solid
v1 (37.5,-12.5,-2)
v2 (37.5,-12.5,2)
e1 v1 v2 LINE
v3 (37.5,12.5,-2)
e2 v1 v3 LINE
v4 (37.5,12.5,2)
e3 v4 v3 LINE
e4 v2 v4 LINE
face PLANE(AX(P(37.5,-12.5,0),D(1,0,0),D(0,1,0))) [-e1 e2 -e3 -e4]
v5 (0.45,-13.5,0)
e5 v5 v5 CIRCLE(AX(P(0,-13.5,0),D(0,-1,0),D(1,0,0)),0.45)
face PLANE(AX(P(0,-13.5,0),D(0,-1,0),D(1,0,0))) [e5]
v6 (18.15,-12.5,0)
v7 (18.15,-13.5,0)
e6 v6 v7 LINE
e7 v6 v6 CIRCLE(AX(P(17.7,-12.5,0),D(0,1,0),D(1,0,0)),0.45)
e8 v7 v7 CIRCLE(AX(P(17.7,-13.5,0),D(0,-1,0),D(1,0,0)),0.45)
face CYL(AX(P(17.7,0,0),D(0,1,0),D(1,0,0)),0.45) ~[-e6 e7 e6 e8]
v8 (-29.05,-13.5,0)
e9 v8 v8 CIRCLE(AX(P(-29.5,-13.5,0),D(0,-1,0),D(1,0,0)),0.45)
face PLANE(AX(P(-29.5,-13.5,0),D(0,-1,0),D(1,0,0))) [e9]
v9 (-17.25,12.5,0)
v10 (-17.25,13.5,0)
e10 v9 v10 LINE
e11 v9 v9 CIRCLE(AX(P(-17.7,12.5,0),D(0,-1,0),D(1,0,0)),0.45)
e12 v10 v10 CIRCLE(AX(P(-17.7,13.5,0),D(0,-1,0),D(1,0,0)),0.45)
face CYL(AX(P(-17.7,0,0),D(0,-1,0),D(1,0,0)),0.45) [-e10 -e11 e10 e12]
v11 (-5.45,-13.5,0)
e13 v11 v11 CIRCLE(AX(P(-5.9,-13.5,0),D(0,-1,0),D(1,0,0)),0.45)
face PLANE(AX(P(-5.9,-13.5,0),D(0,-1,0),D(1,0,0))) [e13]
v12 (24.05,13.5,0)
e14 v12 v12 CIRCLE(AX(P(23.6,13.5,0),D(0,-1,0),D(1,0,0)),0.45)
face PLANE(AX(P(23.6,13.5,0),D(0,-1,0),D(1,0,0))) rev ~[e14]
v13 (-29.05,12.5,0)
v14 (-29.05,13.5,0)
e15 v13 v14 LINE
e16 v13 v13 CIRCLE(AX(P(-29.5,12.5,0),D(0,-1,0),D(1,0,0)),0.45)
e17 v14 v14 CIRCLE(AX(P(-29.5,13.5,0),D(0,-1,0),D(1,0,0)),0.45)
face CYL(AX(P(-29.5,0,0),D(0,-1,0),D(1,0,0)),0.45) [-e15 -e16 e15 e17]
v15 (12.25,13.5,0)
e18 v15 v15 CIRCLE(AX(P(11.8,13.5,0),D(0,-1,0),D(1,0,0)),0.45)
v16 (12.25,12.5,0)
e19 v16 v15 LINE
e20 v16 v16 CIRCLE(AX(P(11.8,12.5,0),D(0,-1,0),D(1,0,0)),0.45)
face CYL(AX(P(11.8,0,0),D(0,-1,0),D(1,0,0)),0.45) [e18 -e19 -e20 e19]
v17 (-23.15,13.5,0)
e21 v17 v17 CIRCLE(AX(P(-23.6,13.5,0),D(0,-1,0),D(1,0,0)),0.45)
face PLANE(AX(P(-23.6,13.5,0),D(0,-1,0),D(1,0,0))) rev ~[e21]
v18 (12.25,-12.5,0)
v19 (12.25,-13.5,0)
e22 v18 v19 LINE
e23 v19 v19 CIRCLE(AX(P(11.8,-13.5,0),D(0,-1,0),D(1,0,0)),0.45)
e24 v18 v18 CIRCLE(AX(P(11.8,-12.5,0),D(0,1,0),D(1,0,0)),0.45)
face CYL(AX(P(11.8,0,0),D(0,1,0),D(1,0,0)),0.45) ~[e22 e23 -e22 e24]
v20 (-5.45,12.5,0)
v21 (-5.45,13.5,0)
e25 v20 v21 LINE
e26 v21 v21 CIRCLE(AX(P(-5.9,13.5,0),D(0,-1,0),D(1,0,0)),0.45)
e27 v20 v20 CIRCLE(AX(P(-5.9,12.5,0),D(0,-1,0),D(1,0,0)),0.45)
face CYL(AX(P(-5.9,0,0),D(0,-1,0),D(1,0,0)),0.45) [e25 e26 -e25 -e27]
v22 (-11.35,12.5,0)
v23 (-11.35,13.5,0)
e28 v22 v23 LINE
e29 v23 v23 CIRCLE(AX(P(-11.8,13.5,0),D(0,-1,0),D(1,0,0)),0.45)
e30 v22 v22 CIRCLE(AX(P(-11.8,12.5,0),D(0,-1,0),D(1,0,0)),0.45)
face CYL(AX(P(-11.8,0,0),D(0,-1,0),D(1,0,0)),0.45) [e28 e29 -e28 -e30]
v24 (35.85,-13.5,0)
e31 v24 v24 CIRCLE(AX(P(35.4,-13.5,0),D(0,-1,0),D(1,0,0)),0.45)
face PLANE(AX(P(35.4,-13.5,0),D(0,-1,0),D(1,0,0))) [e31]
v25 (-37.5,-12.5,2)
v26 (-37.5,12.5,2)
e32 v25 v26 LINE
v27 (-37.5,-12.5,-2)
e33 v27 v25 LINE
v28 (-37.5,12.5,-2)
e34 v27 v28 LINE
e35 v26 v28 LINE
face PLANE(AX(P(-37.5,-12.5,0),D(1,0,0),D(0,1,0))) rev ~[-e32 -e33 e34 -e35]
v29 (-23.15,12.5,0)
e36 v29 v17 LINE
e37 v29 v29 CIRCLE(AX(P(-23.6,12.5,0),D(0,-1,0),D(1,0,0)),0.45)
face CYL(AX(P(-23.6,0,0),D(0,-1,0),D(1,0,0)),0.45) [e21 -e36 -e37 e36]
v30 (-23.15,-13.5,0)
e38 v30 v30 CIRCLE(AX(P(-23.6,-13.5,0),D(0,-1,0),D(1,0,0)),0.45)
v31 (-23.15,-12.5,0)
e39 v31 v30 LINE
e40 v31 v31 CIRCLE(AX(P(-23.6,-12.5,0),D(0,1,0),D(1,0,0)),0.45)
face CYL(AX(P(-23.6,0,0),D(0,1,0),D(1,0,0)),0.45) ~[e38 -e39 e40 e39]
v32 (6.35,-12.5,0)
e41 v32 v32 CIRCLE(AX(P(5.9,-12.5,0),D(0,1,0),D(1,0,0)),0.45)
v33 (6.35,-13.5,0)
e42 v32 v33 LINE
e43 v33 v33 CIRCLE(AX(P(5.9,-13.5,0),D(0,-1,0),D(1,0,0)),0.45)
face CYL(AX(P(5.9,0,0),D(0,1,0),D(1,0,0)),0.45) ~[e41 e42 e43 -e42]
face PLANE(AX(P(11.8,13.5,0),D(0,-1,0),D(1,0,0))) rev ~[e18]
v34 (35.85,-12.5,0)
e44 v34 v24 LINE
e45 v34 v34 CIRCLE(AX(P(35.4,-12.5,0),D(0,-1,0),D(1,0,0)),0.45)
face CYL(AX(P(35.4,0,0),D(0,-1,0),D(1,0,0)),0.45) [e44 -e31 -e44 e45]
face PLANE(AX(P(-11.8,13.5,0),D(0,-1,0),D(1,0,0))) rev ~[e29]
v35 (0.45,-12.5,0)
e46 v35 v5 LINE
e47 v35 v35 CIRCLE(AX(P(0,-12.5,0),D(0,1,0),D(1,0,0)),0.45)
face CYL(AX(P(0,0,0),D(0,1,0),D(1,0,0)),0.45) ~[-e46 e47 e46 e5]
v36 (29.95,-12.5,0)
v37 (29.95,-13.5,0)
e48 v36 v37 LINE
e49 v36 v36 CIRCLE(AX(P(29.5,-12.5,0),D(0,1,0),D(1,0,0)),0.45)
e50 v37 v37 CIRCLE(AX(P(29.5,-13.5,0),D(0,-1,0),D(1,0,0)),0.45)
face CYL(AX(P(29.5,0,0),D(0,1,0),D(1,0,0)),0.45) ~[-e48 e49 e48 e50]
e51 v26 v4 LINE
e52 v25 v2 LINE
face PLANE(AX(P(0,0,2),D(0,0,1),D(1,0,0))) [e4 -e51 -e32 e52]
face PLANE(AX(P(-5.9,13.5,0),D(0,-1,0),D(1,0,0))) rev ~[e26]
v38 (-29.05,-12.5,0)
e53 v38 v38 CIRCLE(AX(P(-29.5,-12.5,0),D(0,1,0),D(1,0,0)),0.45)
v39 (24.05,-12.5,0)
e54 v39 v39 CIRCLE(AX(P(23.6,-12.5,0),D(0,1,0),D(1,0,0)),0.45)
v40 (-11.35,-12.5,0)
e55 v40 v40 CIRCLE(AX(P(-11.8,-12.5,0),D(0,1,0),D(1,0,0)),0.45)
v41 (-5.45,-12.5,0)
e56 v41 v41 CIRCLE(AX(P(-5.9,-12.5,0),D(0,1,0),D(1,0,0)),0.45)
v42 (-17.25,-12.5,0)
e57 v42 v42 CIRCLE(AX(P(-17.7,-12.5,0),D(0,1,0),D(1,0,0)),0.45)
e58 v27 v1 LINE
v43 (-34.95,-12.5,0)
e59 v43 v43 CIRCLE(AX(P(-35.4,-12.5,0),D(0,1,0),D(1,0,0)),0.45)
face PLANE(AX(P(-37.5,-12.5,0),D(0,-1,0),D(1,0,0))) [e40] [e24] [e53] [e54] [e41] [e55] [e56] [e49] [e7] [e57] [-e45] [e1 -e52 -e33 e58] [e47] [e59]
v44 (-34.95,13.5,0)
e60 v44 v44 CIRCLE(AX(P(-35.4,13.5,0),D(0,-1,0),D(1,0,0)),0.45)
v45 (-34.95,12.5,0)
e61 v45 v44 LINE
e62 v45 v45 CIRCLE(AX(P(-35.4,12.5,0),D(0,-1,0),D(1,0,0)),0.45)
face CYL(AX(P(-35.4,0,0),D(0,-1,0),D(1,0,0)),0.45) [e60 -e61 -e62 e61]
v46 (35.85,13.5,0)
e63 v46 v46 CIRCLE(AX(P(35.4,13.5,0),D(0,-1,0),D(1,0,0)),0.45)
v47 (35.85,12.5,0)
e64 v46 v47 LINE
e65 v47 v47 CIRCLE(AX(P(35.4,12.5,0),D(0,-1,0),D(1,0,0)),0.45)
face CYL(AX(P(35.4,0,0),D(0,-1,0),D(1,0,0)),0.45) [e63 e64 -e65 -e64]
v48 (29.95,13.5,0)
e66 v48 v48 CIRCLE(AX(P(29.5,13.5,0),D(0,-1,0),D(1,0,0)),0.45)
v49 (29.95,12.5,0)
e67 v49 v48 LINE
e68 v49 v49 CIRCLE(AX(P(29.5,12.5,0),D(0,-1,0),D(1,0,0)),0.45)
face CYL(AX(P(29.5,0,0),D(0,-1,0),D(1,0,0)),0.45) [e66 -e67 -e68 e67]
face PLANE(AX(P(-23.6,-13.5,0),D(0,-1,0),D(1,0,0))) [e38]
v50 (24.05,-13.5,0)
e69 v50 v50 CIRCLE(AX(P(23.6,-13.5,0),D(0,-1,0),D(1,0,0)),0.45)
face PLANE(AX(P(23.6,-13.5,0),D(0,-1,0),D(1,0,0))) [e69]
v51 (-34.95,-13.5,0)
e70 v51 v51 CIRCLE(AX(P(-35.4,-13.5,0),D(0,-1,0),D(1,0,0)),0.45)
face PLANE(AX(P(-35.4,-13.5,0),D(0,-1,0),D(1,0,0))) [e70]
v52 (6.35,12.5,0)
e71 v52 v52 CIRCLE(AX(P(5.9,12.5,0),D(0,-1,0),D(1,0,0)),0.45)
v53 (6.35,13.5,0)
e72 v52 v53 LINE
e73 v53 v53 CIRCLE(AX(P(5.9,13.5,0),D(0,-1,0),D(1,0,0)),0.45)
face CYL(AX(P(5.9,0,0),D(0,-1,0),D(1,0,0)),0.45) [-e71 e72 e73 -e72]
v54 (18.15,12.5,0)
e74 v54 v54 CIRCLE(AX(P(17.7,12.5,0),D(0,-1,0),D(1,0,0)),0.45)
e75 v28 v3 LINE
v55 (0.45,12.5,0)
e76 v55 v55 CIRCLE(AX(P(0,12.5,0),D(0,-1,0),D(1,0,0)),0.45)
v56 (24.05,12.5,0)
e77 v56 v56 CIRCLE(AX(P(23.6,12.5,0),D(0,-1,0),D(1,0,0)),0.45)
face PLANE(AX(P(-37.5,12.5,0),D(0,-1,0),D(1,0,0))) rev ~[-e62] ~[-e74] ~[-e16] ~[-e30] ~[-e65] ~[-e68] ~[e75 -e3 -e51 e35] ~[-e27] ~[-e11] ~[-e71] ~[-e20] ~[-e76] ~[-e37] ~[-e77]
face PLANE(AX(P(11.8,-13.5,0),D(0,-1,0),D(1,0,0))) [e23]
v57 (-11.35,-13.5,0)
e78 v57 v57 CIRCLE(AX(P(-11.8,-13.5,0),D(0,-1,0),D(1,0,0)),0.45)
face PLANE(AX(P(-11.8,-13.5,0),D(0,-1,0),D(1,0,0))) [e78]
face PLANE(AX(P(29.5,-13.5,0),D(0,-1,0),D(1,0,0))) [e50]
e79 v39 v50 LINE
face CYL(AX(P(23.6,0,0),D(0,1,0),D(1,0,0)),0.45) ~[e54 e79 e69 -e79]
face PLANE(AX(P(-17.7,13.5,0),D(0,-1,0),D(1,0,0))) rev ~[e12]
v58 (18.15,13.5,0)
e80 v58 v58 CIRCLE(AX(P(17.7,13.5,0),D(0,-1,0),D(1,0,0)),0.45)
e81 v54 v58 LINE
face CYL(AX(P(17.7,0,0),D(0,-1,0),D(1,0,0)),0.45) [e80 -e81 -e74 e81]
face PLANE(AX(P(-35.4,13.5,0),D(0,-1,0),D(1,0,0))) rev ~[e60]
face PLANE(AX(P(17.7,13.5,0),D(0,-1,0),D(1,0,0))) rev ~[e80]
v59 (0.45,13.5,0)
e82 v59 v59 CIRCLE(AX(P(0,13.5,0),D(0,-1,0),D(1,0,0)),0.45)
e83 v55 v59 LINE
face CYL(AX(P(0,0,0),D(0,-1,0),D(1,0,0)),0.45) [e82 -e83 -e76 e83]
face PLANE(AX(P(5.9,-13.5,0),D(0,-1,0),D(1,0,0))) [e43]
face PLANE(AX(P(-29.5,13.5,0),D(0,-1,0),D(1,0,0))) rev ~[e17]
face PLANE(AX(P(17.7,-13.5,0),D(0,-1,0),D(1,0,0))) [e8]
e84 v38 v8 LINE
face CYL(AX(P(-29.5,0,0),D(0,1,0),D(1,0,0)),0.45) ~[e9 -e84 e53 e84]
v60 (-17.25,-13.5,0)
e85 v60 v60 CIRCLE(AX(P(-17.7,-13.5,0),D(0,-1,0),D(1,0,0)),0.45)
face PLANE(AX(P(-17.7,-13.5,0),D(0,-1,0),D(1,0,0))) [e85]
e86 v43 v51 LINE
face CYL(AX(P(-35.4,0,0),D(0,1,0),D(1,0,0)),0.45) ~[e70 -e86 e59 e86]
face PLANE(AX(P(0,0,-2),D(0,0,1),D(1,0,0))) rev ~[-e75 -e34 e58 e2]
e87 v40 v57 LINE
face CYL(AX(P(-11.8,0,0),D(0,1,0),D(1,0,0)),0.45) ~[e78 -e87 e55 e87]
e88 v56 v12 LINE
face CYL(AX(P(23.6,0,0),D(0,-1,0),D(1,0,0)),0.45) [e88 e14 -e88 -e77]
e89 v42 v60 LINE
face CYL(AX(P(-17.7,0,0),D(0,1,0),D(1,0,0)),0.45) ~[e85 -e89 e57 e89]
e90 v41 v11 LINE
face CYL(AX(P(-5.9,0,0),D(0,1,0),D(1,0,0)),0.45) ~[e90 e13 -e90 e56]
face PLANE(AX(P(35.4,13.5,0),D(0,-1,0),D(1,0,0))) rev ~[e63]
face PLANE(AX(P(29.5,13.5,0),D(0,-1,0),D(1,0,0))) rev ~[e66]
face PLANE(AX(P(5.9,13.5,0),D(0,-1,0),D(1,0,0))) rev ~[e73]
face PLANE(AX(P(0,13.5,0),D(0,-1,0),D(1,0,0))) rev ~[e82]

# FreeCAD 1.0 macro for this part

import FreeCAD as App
import Part
import Sketcher
Q = App.Units.Quantity


def add_polygon(sketch, points):
    """Adds a closed chain of lines whose ends are joined by coincident constraints."""
    first, n = sketch.GeometryCount, len(points)
    for a, b in zip(points, points[1:] + points[:1]):
        sketch.addGeometry(Part.LineSegment(App.Vector(*a, 0), App.Vector(*b, 0)), False)
    for i in range(n):
        sketch.addConstraint(Sketcher.Constraint("Coincident", first + i, 2, first + (i + 1) % n, 1))

doc = App.newDocument("Part")
body = doc.addObject("PartDesign::Body", "Body")

# Sketch on XY plane
sketch1 = body.newObject("Sketcher::SketchObject", "Sketch")
sketch1.AttachmentSupport = (doc.getObject("XY_Plane"), [""])
sketch1.MapMode = "FlatFace"
add_polygon(sketch1, [(-37.5, 12.5), (-37.5, -12.5), (37.5, -12.5), (37.5, 12.5)])  # lines 0-3
sketch1.addConstraint([
    Sketcher.Constraint("Vertical", 0),
    Sketcher.Constraint("Horizontal", 1),
    Sketcher.Constraint("Vertical", 2),
    Sketcher.Constraint("Horizontal", 3),
    Sketcher.Constraint("Symmetric", 0, 2, 2, 2, -1, 1),
    Sketcher.Constraint("DistanceX", 1, 1, 1, 2, Q("75 mm")),
    Sketcher.Constraint("DistanceY", 0, 2, 0, 1, Q("25 mm")),
])
pad1 = body.newObject("PartDesign::Pad", "Pad")
pad1.Profile = sketch1
pad1.Length = 4
pad1.Midplane = True

# Sketch on XZ plane
sketch2 = body.newObject("Sketcher::SketchObject", "Sketch001")
sketch2.AttachmentSupport = (doc.getObject("XZ_Plane"), [""])
sketch2.MapMode = "FlatFace"
sketch2.addGeometry([
    Part.Circle(App.Vector(0, 0, 0), App.Vector(0, 0, 1), 0.45),  # 0
    Part.Circle(App.Vector(-5.9, 0, 0), App.Vector(0, 0, 1), 0.45),  # 1
    Part.Circle(App.Vector(-11.8, 0, 0), App.Vector(0, 0, 1), 0.45),  # 2
    Part.Circle(App.Vector(-17.7, 0, 0), App.Vector(0, 0, 1), 0.45),  # 3
    Part.Circle(App.Vector(-23.6, 0, 0), App.Vector(0, 0, 1), 0.45),  # 4
    Part.Circle(App.Vector(-29.5, 0, 0), App.Vector(0, 0, 1), 0.45),  # 5
    Part.Circle(App.Vector(-35.4, 0, 0), App.Vector(0, 0, 1), 0.45),  # 6
    Part.Circle(App.Vector(5.9, 0, 0), App.Vector(0, 0, 1), 0.45),  # 7
    Part.Circle(App.Vector(11.8, 0, 0), App.Vector(0, 0, 1), 0.45),  # 8
    Part.Circle(App.Vector(17.7, 0, 0), App.Vector(0, 0, 1), 0.45),  # 9
    Part.Circle(App.Vector(23.6, 0, 0), App.Vector(0, 0, 1), 0.45),  # 10
    Part.Circle(App.Vector(29.5, 0, 0), App.Vector(0, 0, 1), 0.45),  # 11
    Part.Circle(App.Vector(35.4, 0, 0), App.Vector(0, 0, 1), 0.45),  # 12
], False)
sketch2.addConstraint([
    Sketcher.Constraint("Coincident", 0, 3, -1, 1),
    Sketcher.Constraint("Equal", 0, 1),
    Sketcher.Constraint("Equal", 1, 2),
    Sketcher.Constraint("Equal", 2, 3),
    Sketcher.Constraint("Equal", 3, 4),
    Sketcher.Constraint("Equal", 4, 5),
    Sketcher.Constraint("Equal", 5, 6),
    Sketcher.Constraint("Equal", 6, 7),
    Sketcher.Constraint("Equal", 7, 8),
    Sketcher.Constraint("Equal", 8, 9),
    Sketcher.Constraint("Equal", 9, 10),
    Sketcher.Constraint("Equal", 10, 11),
    Sketcher.Constraint("Equal", 11, 12),
    Sketcher.Constraint("Symmetric", 1, 3, 7, 3, -1, 1),
    Sketcher.Constraint("Symmetric", 2, 3, 8, 3, -1, 1),
    Sketcher.Constraint("Symmetric", 3, 3, 9, 3, -1, 1),
    Sketcher.Constraint("Symmetric", 4, 3, 10, 3, -1, 1),
    Sketcher.Constraint("Symmetric", 5, 3, 11, 3, -1, 1),
    Sketcher.Constraint("Symmetric", 6, 3, 12, 3, -1, 1),
    Sketcher.Constraint("PointOnObject", 1, 3, -1),
    Sketcher.Constraint("PointOnObject", 2, 3, -1),
    Sketcher.Constraint("PointOnObject", 3, 3, -1),
    Sketcher.Constraint("PointOnObject", 4, 3, -1),
    Sketcher.Constraint("PointOnObject", 5, 3, -1),
    Sketcher.Constraint("PointOnObject", 6, 3, -1),
    Sketcher.Constraint("Diameter", 0, Q("0.9 mm")),
    Sketcher.Constraint("DistanceX", 1, 3, -1, 1, Q("5.9 mm")),
    Sketcher.Constraint("DistanceX", 2, 3, -1, 1, Q("11.8 mm")),
    Sketcher.Constraint("DistanceX", 3, 3, -1, 1, Q("17.7 mm")),
    Sketcher.Constraint("DistanceX", 4, 3, -1, 1, Q("23.6 mm")),
    Sketcher.Constraint("DistanceX", 5, 3, -1, 1, Q("29.5 mm")),
    Sketcher.Constraint("DistanceX", 6, 3, -1, 1, Q("35.4 mm")),
])
pad2 = body.newObject("PartDesign::Pad", "Pad001")
pad2.Profile = sketch2
pad2.Length = 27
pad2.Midplane = True

doc.recompute()
